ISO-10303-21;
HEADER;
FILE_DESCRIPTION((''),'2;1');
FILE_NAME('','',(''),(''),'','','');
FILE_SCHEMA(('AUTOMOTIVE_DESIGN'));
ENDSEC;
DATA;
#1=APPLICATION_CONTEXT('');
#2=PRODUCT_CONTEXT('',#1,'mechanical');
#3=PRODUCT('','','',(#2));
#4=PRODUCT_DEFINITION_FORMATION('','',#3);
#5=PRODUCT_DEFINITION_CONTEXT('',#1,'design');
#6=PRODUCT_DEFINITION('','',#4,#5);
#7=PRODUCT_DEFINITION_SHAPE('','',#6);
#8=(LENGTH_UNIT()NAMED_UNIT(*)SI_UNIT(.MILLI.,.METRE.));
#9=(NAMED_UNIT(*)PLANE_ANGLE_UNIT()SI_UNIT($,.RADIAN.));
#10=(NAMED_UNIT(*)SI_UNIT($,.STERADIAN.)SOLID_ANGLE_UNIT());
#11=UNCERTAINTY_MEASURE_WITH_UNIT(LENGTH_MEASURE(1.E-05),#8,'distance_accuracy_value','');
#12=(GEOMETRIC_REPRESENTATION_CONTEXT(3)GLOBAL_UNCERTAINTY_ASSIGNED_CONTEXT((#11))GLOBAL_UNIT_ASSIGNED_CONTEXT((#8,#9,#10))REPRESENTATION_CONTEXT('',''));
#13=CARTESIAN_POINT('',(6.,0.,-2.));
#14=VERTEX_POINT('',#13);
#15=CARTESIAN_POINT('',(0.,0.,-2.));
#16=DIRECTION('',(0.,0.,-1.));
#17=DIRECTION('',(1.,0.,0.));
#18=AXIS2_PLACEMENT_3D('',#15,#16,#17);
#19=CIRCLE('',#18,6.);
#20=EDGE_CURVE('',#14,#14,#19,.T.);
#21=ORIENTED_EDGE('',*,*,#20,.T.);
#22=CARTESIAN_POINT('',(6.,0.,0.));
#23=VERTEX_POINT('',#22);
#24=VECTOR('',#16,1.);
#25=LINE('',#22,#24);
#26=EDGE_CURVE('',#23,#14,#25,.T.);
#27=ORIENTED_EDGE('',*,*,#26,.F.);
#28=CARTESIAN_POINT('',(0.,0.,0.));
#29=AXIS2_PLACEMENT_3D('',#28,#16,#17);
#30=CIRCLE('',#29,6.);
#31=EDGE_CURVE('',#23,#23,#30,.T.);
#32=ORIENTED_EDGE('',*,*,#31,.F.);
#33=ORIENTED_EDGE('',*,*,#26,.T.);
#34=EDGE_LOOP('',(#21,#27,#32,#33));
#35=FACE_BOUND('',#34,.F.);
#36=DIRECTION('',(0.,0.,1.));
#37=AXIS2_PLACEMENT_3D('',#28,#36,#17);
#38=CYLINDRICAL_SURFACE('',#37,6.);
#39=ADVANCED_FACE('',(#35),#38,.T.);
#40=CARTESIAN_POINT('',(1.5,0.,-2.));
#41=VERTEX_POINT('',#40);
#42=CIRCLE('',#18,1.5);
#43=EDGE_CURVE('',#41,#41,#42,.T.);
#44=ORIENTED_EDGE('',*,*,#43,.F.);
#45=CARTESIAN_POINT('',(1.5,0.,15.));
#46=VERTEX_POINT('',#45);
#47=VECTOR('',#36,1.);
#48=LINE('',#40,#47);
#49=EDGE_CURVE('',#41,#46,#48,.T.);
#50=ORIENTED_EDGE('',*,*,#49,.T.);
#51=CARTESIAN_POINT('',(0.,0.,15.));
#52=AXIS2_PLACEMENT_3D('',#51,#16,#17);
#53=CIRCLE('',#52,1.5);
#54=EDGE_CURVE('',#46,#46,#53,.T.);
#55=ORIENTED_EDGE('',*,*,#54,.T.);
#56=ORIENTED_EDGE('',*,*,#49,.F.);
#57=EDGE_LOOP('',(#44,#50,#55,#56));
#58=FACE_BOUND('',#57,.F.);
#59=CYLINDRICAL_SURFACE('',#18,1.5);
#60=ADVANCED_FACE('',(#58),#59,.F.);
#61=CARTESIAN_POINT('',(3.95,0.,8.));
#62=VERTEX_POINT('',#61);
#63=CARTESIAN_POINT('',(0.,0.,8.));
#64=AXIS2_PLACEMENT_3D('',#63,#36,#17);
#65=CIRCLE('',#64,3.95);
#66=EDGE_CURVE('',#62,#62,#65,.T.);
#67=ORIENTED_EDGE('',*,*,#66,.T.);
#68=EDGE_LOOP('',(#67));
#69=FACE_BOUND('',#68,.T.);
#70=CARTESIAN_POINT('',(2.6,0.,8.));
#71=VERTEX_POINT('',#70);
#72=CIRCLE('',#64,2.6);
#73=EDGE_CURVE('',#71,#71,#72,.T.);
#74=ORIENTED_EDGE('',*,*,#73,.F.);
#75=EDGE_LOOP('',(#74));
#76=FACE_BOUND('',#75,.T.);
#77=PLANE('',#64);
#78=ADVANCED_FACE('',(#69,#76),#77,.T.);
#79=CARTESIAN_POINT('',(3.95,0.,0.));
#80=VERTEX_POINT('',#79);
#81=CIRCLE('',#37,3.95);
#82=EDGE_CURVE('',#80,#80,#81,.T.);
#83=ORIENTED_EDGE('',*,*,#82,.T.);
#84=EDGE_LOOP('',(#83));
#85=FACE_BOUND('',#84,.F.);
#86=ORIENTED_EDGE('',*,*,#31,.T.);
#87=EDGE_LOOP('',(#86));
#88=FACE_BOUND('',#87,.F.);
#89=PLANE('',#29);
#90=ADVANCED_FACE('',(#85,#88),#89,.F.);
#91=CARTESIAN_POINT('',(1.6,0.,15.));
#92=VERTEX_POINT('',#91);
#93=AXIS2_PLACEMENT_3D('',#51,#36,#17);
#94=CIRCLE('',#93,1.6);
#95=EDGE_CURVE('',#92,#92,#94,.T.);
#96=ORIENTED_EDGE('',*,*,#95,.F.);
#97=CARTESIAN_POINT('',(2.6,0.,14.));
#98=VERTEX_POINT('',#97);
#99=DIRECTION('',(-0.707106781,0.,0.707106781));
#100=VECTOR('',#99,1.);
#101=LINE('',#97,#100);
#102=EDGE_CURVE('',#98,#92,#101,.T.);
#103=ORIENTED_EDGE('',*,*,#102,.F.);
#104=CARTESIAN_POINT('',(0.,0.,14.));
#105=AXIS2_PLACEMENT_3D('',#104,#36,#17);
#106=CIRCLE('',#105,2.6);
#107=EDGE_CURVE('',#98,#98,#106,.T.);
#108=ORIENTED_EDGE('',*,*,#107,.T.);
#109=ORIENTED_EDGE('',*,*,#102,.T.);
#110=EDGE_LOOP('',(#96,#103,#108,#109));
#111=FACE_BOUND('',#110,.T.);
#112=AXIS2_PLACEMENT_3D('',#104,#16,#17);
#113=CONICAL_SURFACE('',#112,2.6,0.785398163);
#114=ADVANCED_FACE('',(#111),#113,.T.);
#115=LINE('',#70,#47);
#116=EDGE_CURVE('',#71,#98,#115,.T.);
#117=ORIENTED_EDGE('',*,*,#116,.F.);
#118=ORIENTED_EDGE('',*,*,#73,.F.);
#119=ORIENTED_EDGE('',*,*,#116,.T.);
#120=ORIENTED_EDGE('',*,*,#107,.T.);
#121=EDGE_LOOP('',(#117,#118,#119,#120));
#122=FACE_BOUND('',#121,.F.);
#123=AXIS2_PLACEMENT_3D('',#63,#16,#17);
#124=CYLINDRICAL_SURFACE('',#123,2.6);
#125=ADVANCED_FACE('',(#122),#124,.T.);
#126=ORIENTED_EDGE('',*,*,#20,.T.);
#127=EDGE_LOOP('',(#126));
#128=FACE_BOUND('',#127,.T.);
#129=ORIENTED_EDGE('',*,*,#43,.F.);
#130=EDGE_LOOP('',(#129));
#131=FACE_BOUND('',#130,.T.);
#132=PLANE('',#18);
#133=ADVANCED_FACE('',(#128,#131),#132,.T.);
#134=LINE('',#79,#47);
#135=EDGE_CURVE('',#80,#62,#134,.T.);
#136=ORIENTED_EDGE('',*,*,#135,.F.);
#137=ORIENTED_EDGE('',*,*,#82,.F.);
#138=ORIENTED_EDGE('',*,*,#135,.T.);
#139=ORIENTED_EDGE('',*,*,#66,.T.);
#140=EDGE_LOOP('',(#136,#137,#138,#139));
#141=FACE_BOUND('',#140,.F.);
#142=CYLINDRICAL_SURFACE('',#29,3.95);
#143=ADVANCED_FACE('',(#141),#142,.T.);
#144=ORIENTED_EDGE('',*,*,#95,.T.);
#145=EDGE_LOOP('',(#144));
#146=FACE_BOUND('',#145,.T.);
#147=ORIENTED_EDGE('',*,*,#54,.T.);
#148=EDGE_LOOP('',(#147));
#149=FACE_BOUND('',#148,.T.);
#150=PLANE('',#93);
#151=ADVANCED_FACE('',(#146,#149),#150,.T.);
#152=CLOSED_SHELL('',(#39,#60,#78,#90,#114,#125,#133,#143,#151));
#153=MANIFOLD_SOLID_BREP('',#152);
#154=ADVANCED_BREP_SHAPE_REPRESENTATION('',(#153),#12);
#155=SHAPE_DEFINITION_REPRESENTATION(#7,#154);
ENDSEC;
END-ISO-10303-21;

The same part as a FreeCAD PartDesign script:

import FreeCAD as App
import Part
import Sketcher
from FreeCAD import Vector
Q = App.Units.Quantity


def edges_at(feature, points):
    """Names of the edges that pass closest to the given points."""
    edges = feature.Shape.Edges
    near = lambda p: min(range(len(edges)), key=lambda i: edges[i].distToShape(Part.Vertex(*p))[0])
    return sorted({f"Edge{near(p) + 1}" for p in points})

doc = App.newDocument("Part")
body = doc.addObject("PartDesign::Body", "Body")

# Sketch on XY plane
sketch1 = body.newObject("Sketcher::SketchObject", "Sketch")
sketch1.AttachmentSupport = (doc.getObject("XY_Plane"), [""])
sketch1.MapMode = "FlatFace"
sketch1.addGeometry(Part.Circle(Vector(0, 0, 0), Vector(0, 0, 1), 3.95), False)
sketch1.addConstraint(Sketcher.Constraint("Coincident", 0, 3, -1, 1))
sketch1.addConstraint(Sketcher.Constraint("Diameter", 0, Q("7.9 mm")))
pad1 = body.newObject("PartDesign::Pad", "Pad")
pad1.Profile = sketch1
pad1.Length = 8

# Sketch on XY plane
sketch2 = body.newObject("Sketcher::SketchObject", "Sketch001")
sketch2.AttachmentSupport = (doc.getObject("XY_Plane"), [""])
sketch2.MapMode = "FlatFace"
sketch2.AttachmentOffset = App.Placement(Vector(0, 0, 8), App.Rotation())
sketch2.addGeometry(Part.Circle(Vector(0, 0, 0), Vector(0, 0, 1), 2.6), False)
sketch2.addConstraint(Sketcher.Constraint("Coincident", 0, 3, -1, 1))
sketch2.addConstraint(Sketcher.Constraint("Diameter", 0, Q("5.2 mm")))
pad2 = body.newObject("PartDesign::Pad", "Pad001")
pad2.Profile = sketch2
pad2.Length = 7
doc.recompute()

chamfer = body.newObject("PartDesign::Chamfer", "Chamfer")
chamfer.Base = (pad2, edges_at(pad2, [(-2.6, 0, 15)]))
chamfer.Size = 1

# Sketch on XY plane
sketch3 = body.newObject("Sketcher::SketchObject", "Sketch002")
sketch3.AttachmentSupport = (doc.getObject("XY_Plane"), [""])
sketch3.MapMode = "FlatFace"
sketch3.addGeometry(Part.Circle(Vector(0, 0, 0), Vector(0, 0, 1), 6), False)
sketch3.addConstraint(Sketcher.Constraint("Coincident", 0, 3, -1, 1))
sketch3.addConstraint(Sketcher.Constraint("Diameter", 0, Q("12 mm")))
pad3 = body.newObject("PartDesign::Pad", "Pad002")
pad3.Profile = sketch3
pad3.Length = 2
pad3.Reversed = True

# Sketch on XY plane
sketch4 = body.newObject("Sketcher::SketchObject", "Sketch003")
sketch4.AttachmentSupport = (doc.getObject("XY_Plane"), [""])
sketch4.MapMode = "FlatFace"
sketch4.AttachmentOffset = App.Placement(Vector(0, 0, -2), App.Rotation())
sketch4.addGeometry(Part.Circle(Vector(0, 0, 0), Vector(0, 0, 1), 1.5), False)
sketch4.addConstraint(Sketcher.Constraint("Coincident", 0, 3, -1, 1))
sketch4.addConstraint(Sketcher.Constraint("Diameter", 0, Q("3 mm")))
pocket1 = body.newObject("PartDesign::Pocket", "Pocket")
pocket1.Profile = sketch4
pocket1.Type = "ThroughAll"
pocket1.Reversed = True

doc.recompute()
